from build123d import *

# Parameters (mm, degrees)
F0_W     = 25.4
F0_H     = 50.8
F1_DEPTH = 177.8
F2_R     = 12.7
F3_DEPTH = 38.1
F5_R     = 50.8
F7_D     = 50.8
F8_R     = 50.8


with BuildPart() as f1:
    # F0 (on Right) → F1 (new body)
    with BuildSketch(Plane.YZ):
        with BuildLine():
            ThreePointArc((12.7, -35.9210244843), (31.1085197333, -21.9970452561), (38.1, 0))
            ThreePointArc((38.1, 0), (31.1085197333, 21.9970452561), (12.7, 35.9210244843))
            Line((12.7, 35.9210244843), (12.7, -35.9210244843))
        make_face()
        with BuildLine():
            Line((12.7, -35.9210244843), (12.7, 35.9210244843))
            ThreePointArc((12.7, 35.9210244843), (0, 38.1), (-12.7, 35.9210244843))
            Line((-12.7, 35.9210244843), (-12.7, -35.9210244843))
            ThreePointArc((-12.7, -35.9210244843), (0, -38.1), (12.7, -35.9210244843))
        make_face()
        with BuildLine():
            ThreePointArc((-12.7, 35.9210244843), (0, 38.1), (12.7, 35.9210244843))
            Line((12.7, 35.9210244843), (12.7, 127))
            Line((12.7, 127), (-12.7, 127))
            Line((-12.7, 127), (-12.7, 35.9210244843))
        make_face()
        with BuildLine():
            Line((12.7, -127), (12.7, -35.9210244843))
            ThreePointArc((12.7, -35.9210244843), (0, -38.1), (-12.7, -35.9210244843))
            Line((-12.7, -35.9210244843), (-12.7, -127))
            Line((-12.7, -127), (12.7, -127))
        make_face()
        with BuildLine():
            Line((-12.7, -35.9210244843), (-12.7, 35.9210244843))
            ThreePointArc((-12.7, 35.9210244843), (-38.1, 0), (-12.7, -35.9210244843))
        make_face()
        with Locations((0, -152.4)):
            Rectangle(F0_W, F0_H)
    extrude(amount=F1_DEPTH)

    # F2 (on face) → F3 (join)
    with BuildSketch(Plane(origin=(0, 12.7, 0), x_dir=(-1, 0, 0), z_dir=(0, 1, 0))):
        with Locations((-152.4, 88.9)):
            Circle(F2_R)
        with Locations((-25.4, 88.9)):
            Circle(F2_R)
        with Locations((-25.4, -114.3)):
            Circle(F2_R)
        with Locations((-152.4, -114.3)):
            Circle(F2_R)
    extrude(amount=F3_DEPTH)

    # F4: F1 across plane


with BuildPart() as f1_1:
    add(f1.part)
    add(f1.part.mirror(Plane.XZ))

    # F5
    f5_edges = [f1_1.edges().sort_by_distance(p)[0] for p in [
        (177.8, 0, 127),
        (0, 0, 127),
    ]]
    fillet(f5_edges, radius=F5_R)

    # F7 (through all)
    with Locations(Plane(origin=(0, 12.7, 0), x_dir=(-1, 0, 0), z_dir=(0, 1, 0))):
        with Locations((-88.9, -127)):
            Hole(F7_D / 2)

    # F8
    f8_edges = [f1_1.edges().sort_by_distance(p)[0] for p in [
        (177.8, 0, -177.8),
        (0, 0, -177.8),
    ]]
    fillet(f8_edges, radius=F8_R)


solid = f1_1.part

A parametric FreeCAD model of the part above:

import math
import FreeCAD as App
import Part
import Sketcher
Q = App.Units.Quantity


def edges_at(feature, points):
    """Names of the edges that pass closest to the given points."""
    edges = feature.Shape.Edges
    near = lambda p: min(range(len(edges)), key=lambda i: edges[i].distToShape(Part.Vertex(*p))[0])
    return sorted({f"Edge{near(p) + 1}" for p in points})

doc = App.newDocument("Part")
body = doc.addObject("PartDesign::Body", "Body")

# Sketch on YZ plane
sketch1 = doc.addObject("Sketcher::SketchObject", "Sketch")
body.addObject(sketch1)
sketch1.AttachmentSupport = (doc.YZ_Plane, [""])
sketch1.MapMode = "FlatFace"
sketch1.addGeometry([
    Part.ArcOfCircle(Part.Circle(App.Vector(0, 0, 0), App.Vector(0, 0, 1), 38.1), math.radians(-70.528779), math.radians(0)),  # 0
    Part.ArcOfCircle(Part.Circle(App.Vector(0, 0, 0), App.Vector(0, 0, 1), 38.1), math.radians(0), math.radians(70.528779)),  # 1
    Part.LineSegment(App.Vector(12.7, 35.921024, 0), App.Vector(12.7, 127, 0)),  # 2
    Part.LineSegment(App.Vector(12.7, 127, 0), App.Vector(-12.7, 127, 0)),  # 3
    Part.LineSegment(App.Vector(-12.7, 127, 0), App.Vector(-12.7, 35.921024, 0)),  # 4
    Part.ArcOfCircle(Part.Circle(App.Vector(0, 0, 0), App.Vector(0, 0, 1), 38.1), math.radians(109.471221), math.radians(250.528779)),  # 5
    Part.LineSegment(App.Vector(-12.7, -35.921024, 0), App.Vector(-12.7, -177.8, 0)),  # 6
    Part.LineSegment(App.Vector(-12.7, -177.8, 0), App.Vector(12.7, -177.8, 0)),  # 7
    Part.LineSegment(App.Vector(12.7, -177.8, 0), App.Vector(12.7, -35.921024, 0)),  # 8
], False)
sketch1.addConstraint([
    Sketcher.Constraint("Tangent", 0, 2, 1, 1),
    Sketcher.Constraint("Coincident", 1, 2, 2, 1),
    Sketcher.Constraint("Coincident", 2, 2, 3, 1),
    Sketcher.Constraint("Coincident", 3, 2, 4, 1),
    Sketcher.Constraint("Coincident", 4, 2, 5, 1),
    Sketcher.Constraint("Coincident", 5, 2, 6, 1),
    Sketcher.Constraint("Coincident", 6, 2, 7, 1),
    Sketcher.Constraint("Coincident", 7, 2, 8, 1),
    Sketcher.Constraint("Coincident", 8, 2, 0, 1),
    Sketcher.Constraint("Vertical", 2),
    Sketcher.Constraint("Horizontal", 3),
    Sketcher.Constraint("Vertical", 4),
    Sketcher.Constraint("Vertical", 6),
    Sketcher.Constraint("Horizontal", 7),
    Sketcher.Constraint("Vertical", 8),
    Sketcher.Constraint("Coincident", 0, 3, -1, 1),
    Sketcher.Constraint("Coincident", 5, 3, -1, 1),
    Sketcher.Constraint("Equal", 0, 1),
    Sketcher.Constraint("Equal", 1, 5),
    Sketcher.Constraint("PointOnObject", 0, 2, -1),
    Sketcher.Constraint("Horizontal", 1, 2, 4, 2),
    Sketcher.Constraint("Horizontal", 5, 2, 8, 2),
    Sketcher.Constraint("Vertical", 4, 2, 5, 2),
    Sketcher.Constraint("Radius", 0, Q("1.5 in")),
    Sketcher.Constraint("DistanceX", 3, 2, 3, 1, Q("1 in")),
    Sketcher.Constraint("DistanceY", -1, 1, 2, 2, Q("5 in")),
    Sketcher.Constraint("DistanceY", 6, 2, -1, 1, Q("7 in")),
])
pad1 = doc.addObject("PartDesign::Pad", "Pad")
body.addObject(pad1)
pad1.Profile = sketch1
pad1.Length = Q("7 in")

# Sketch on XZ plane
sketch2 = doc.addObject("Sketcher::SketchObject", "Sketch001")
body.addObject(sketch2)
sketch2.AttachmentSupport = (doc.XZ_Plane, [""])
sketch2.MapMode = "FlatFace"
sketch2.AttachmentOffset = App.Placement(App.Vector(0, 0, -0.5 * 25.4), App.Rotation())
sketch2.addGeometry([
    Part.Circle(App.Vector(152.4, 88.9, 0), App.Vector(0, 0, 1), 12.7),
    Part.Circle(App.Vector(25.4, 88.9, 0), App.Vector(0, 0, 1), 12.7),
    Part.Circle(App.Vector(25.4, -114.3, 0), App.Vector(0, 0, 1), 12.7),
    Part.Circle(App.Vector(152.4, -114.3, 0), App.Vector(0, 0, 1), 12.7),
], False)
sketch2.addConstraint([
    Sketcher.Constraint("Equal", 0, 1),
    Sketcher.Constraint("Equal", 1, 2),
    Sketcher.Constraint("Equal", 2, 3),
    Sketcher.Constraint("Horizontal", 0, 3, 1, 3),
    Sketcher.Constraint("Horizontal", 2, 3, 3, 3),
    Sketcher.Constraint("Vertical", 1, 3, 2, 3),
    Sketcher.Constraint("Vertical", 0, 3, 3, 3),
    Sketcher.Constraint("Diameter", 0, Q("1 in")),
    Sketcher.Constraint("DistanceX", -1, 1, 0, 3, Q("6 in")),
    Sketcher.Constraint("DistanceX", -1, 1, 1, 3, Q("1 in")),
    Sketcher.Constraint("DistanceY", 2, 3, 1, 3, Q("8 in")),
    Sketcher.Constraint("DistanceY", -1, 1, 0, 3, Q("3.5 in")),
])
pad2 = doc.addObject("PartDesign::Pad", "Pad001")
body.addObject(pad2)
pad2.Profile = sketch2
pad2.Length = Q("1.5 in")
pad2.Reversed = True
body2 = doc.addObject("PartDesign::Body", "Body001")
doc.recompute()

body2.BaseFeature = body
doc.recompute()

mirroring = doc.addObject("Part::Mirroring", "Mirroring")
mirroring.Source = body
mirroring.Base = App.Vector(0, 0, 0)
mirroring.Normal = App.Vector(0, -1, 0)
body3 = doc.addObject("PartDesign::Body", "Body002")
body3.BaseFeature = mirroring
boolean = doc.addObject("PartDesign::Boolean", "Boolean")
body2.addObject(boolean)
boolean.Type = "Fuse"
boolean.addObjects([body3])
doc.recompute()

fillet = doc.addObject("PartDesign::Fillet", "Fillet")
body2.addObject(fillet)
fillet.Base = (boolean, edges_at(boolean, [(177.8, 0, 127), (0, 0, 127)]))
fillet.Radius = Q("2 in")

# Sketch on XZ plane
sketch3 = doc.addObject("Sketcher::SketchObject", "Sketch002")
body2.addObject(sketch3)
sketch3.AttachmentSupport = (doc.getObject("XZ_Plane001"), [""])
sketch3.MapMode = "FlatFace"
sketch3.AttachmentOffset = App.Placement(App.Vector(0, 0, -0.5 * 25.4), App.Rotation())
sketch3.addGeometry(Part.Circle(App.Vector(88.9, -127, 0), App.Vector(0, 0, 1), 25.4), False)
sketch3.addConstraint([
    Sketcher.Constraint("Diameter", 0, Q("2 in")),
    Sketcher.Constraint("DistanceY", 0, 3, -1, 1, Q("5 in")),
    Sketcher.Constraint("DistanceX", -1, 1, 0, 3, Q("3.5 in")),
])
doc.recompute()
hole = doc.addObject("PartDesign::Hole", "Hole")
body2.addObject(hole)
hole.Profile = sketch3
hole.ThreadType = "None"
hole.Diameter = Q("2 in")
hole.DepthType = "ThroughAll"
hole.Reversed = True
doc.recompute()

fillet2 = doc.addObject("PartDesign::Fillet", "Fillet001")
body2.addObject(fillet2)
fillet2.Base = (hole, edges_at(hole, [(177.8, 0, -177.8), (0, 0, -177.8)]))
fillet2.Radius = Q("2 in")
mirroring.Visibility = False

doc.recompute()
